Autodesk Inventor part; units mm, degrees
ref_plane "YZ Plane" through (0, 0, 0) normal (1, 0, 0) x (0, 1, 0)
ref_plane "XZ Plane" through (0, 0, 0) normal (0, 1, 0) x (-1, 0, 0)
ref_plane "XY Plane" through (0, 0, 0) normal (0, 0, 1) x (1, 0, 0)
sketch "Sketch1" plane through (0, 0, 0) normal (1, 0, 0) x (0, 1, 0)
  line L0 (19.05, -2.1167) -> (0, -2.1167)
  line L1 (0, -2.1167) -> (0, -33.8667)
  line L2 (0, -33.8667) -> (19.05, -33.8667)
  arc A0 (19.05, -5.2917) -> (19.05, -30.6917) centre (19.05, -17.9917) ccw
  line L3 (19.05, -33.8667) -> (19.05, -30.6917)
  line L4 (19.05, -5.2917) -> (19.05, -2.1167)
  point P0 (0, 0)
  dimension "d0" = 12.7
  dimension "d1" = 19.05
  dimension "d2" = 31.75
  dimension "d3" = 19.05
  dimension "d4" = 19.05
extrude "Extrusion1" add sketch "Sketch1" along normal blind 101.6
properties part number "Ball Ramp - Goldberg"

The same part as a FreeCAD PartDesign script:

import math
import FreeCAD as App
import Part
import Sketcher
from FreeCAD import Vector
Q = App.Units.Quantity

doc = App.newDocument("Part")
body = doc.addObject("PartDesign::Body", "Body")

# Sketch on YZ plane
sketch1 = doc.addObject("Sketcher::SketchObject", "Sketch")
body.addObject(sketch1)
sketch1.AttachmentSupport = (doc.YZ_Plane, [""])
sketch1.MapMode = "FlatFace"
sketch1.addGeometry([
    Part.LineSegment(Vector(19.1, -5.3, 0), Vector(19.1, -2.1, 0)),  # 0
    Part.LineSegment(Vector(19.1, -2.1, 0), Vector(0, -2.1, 0)),  # 1
    Part.LineSegment(Vector(0, -2.1, 0), Vector(0, -33.9, 0)),  # 2
    Part.LineSegment(Vector(0, -33.9, 0), Vector(19.1, -33.9, 0)),  # 3
    Part.LineSegment(Vector(19.1, -33.9, 0), Vector(19.1, -30.7, 0)),  # 4
    Part.ArcOfCircle(Part.Circle(Vector(19.1, -18, 0), Vector(0, 0, 1), 12.7), math.radians(90), math.radians(270)),  # 5
], False)
sketch1.addConstraint([
    Sketcher.Constraint("Coincident", 0, 2, 1, 1),
    Sketcher.Constraint("Coincident", 1, 2, 2, 1),
    Sketcher.Constraint("Coincident", 2, 2, 3, 1),
    Sketcher.Constraint("Coincident", 3, 2, 4, 1),
    Sketcher.Constraint("Coincident", 4, 2, 5, 2),
    Sketcher.Constraint("Coincident", 5, 1, 0, 1),
    Sketcher.Constraint("Vertical", 0),
    Sketcher.Constraint("Horizontal", 1),
    Sketcher.Constraint("Vertical", 2),
    Sketcher.Constraint("Horizontal", 3),
    Sketcher.Constraint("Vertical", 4),
    Sketcher.Constraint("PointOnObject", 1, 2, -2),
    Sketcher.Constraint("Vertical", 5, 3, 0, 2),
    Sketcher.Constraint("Vertical", 0, 2, 3, 2),
    Sketcher.Constraint("Equal", 0, 4),
    Sketcher.Constraint("Radius", 5, Q("0.5 in")),
    Sketcher.Constraint("DistanceX", 1, 2, 1, 1, Q("0.75 in")),
    Sketcher.Constraint("DistanceY", 2, 2, 2, 1, Q("1.25 in")),
    Sketcher.Constraint("DistanceY", 5, 3, -1, 1, 17.9917),
])
pad1 = doc.addObject("PartDesign::Pad", "Pad")
body.addObject(pad1)
pad1.Profile = sketch1
pad1.Length = Q("4 in")

doc.recompute()
